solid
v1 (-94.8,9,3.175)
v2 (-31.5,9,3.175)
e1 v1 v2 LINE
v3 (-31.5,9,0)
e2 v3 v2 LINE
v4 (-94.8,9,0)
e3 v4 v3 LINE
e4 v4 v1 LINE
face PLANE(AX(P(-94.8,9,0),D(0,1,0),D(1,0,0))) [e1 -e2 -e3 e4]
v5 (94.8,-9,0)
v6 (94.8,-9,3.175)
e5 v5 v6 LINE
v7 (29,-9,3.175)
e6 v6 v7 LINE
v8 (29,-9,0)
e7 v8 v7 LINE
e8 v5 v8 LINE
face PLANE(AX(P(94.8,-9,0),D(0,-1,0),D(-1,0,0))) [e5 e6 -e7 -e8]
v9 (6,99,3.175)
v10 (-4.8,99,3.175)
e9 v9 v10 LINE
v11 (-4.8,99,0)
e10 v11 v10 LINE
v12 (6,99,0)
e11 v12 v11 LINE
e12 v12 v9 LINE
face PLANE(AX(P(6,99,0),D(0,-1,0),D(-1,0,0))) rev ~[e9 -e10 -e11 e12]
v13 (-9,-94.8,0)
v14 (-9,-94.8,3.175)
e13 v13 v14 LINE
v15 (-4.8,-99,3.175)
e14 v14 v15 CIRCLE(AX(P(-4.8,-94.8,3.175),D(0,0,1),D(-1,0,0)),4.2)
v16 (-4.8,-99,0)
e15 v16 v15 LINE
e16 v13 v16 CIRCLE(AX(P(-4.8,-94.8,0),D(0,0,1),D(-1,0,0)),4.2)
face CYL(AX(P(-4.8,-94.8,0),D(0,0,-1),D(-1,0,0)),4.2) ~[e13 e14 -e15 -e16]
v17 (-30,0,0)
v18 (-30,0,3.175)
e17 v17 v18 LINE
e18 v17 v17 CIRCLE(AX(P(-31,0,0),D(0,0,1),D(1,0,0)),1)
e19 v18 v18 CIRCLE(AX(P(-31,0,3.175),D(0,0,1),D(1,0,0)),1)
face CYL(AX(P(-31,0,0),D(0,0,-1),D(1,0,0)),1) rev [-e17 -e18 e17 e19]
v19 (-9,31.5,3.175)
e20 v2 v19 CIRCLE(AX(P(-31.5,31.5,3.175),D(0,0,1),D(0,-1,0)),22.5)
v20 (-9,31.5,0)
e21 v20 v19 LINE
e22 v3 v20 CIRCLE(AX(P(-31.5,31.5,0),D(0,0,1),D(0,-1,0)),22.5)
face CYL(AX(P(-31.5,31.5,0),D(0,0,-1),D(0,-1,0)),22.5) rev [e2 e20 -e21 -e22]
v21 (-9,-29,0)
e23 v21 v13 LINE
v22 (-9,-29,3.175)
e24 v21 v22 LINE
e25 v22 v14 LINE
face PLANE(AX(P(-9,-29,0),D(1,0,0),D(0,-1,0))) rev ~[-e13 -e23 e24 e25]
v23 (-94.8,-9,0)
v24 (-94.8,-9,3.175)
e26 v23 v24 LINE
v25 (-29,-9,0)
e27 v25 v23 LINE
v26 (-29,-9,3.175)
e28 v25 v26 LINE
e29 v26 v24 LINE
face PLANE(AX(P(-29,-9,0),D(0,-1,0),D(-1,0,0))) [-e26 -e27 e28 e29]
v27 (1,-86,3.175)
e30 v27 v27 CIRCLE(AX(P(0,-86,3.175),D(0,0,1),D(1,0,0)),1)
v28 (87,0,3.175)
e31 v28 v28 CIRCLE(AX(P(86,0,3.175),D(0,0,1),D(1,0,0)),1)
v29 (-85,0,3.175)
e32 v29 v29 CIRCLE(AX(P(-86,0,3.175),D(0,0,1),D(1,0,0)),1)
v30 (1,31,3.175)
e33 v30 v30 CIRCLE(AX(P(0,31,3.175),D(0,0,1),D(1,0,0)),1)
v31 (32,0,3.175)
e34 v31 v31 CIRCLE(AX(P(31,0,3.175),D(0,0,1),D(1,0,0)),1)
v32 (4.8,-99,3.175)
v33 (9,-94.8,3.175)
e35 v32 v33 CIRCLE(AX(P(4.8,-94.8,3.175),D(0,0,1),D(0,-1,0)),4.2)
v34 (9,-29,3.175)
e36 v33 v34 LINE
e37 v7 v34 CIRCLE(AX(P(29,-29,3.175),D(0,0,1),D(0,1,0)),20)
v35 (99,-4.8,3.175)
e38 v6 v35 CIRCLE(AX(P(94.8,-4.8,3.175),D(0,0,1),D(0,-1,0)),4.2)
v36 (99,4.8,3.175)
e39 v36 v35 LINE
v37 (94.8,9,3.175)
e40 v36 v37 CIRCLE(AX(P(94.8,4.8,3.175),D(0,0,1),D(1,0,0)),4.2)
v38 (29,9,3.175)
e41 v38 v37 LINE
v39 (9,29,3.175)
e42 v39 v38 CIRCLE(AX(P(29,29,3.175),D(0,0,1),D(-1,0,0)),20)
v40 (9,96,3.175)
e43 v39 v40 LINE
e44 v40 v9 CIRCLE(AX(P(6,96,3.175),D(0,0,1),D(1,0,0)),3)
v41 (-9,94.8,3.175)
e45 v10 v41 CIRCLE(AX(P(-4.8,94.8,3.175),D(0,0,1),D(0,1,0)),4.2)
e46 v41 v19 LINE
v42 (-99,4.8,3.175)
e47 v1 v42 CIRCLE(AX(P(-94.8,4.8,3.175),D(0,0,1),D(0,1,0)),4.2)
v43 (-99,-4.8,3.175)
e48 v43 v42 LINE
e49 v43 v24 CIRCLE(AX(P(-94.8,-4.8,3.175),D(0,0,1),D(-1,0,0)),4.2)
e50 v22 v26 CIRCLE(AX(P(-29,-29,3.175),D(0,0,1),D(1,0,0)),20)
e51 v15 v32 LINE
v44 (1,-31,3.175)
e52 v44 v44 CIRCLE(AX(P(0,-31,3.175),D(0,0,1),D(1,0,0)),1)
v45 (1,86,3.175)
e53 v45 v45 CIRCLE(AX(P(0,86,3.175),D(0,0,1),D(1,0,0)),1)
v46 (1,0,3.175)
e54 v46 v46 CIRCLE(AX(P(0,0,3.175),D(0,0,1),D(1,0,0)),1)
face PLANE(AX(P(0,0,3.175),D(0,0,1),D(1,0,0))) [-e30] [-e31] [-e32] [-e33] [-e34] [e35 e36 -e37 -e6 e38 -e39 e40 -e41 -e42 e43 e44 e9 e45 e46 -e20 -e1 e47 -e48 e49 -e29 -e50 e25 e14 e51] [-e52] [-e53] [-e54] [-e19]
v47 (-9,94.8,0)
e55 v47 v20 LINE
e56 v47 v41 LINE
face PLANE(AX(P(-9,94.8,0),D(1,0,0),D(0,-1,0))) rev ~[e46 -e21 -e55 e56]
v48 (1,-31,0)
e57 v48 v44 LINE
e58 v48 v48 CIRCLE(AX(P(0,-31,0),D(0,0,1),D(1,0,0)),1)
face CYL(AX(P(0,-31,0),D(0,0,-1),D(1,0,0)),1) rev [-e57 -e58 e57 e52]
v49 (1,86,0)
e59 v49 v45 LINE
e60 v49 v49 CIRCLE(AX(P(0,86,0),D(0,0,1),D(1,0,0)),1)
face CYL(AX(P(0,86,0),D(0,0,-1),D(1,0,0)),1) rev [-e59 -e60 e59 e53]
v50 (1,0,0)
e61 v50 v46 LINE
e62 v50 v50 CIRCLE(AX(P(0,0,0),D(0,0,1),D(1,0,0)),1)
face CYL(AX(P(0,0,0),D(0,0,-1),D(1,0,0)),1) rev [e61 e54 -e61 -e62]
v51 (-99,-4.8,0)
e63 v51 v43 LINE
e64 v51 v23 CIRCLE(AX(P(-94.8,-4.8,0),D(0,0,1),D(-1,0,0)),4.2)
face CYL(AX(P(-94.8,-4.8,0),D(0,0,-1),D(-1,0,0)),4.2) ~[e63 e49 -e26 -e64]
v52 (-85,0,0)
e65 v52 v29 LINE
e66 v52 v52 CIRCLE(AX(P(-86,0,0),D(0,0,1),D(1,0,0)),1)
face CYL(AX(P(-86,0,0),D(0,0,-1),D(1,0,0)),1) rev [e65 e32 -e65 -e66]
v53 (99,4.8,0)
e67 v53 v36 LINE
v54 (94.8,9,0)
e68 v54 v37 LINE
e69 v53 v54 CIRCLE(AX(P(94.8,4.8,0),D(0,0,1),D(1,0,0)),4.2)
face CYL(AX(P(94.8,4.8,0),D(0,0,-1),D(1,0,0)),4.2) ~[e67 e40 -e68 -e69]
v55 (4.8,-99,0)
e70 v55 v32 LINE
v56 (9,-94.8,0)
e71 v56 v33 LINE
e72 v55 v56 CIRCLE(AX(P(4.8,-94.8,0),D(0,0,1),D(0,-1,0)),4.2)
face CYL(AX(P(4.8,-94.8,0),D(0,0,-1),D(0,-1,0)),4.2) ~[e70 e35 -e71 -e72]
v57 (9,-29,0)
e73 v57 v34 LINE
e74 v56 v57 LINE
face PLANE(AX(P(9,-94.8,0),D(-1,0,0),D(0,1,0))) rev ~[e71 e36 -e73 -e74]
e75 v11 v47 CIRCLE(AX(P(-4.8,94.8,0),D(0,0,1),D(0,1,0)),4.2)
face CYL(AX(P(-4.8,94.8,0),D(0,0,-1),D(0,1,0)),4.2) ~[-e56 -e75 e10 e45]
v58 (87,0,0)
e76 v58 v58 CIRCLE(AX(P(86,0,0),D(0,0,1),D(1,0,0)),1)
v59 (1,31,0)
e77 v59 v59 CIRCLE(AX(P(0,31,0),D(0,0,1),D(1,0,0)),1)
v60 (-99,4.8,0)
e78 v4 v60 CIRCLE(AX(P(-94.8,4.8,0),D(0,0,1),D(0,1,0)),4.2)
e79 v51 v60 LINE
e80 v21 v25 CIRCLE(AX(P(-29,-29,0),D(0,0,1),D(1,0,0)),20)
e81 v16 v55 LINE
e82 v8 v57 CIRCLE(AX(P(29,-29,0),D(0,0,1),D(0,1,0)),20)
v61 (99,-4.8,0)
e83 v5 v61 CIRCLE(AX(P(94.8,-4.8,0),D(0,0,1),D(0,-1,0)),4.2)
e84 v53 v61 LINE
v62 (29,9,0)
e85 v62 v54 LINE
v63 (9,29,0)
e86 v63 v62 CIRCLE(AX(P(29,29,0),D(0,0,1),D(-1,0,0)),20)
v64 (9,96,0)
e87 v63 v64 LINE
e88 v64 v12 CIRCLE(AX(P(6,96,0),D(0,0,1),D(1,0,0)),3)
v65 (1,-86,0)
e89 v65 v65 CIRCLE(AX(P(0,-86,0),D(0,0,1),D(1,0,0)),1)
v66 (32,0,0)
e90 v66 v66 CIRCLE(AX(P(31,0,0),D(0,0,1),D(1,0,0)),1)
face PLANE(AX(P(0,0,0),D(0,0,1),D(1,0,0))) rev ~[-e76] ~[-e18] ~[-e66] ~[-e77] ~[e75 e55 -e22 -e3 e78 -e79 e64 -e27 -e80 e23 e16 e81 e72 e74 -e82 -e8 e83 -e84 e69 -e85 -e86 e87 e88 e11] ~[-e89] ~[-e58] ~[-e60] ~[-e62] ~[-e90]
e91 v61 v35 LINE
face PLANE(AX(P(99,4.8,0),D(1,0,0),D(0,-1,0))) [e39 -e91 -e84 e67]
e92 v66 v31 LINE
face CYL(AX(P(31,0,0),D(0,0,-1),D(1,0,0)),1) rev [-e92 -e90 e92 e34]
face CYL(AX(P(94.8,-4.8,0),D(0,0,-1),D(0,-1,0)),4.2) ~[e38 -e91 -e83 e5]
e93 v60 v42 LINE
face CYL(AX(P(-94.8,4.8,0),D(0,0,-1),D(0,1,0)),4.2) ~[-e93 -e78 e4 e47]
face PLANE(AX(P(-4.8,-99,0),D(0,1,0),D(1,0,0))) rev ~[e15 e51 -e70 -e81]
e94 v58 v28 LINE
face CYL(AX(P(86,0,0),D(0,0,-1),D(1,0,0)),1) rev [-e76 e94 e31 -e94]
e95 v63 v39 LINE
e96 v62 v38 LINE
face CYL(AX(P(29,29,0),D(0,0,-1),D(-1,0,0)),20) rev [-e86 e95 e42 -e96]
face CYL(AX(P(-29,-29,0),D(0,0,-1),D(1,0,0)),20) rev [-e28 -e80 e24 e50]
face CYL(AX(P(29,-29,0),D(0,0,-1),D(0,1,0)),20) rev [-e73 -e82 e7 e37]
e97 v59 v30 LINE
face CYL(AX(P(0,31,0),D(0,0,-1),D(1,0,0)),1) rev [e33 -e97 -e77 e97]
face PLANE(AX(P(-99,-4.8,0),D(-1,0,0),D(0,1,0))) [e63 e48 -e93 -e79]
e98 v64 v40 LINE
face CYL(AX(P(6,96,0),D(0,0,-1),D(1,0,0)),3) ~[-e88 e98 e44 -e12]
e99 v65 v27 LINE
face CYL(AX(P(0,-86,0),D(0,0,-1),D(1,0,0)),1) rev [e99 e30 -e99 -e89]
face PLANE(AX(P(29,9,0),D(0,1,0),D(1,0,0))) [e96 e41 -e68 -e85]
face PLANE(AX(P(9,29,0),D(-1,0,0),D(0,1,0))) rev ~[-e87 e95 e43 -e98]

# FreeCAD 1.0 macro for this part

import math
import FreeCAD as App
import Part
import Sketcher

V = App.Vector
Q = App.Units.Quantity

doc = App.newDocument("Part")
body = doc.addObject("PartDesign::Body", "Body")

sketch1 = body.newObject("Sketcher::SketchObject", "Sketch")
sketch1.AttachmentSupport = (doc.getObject("XY_Plane"), [""])
sketch1.MapMode = "FlatFace"
sketch1.addGeometry(Part.LineSegment(V(99, -4.8, 0), V(99, 4.8, 0)), False)
sketch1.addGeometry(Part.ArcOfCircle(Part.Circle(V(94.8, 4.8, 0), V(0, 0, 1), 4.2), math.radians(0), math.radians(90)), False)
sketch1.addGeometry(Part.LineSegment(V(94.8, 9, 0), V(29, 9, 0)), False)
sketch1.addGeometry(Part.ArcOfCircle(Part.Circle(V(29, 29, 0), V(0, 0, 1), 20), math.radians(180), math.radians(270)), False)
sketch1.addGeometry(Part.LineSegment(V(9, 29, 0), V(9, 96, 0)), False)
sketch1.addGeometry(Part.ArcOfCircle(Part.Circle(V(6, 96, 0), V(0, 0, 1), 3), math.radians(0), math.radians(90)), False)
sketch1.addGeometry(Part.LineSegment(V(6, 99, 0), V(-4.8, 99, 0)), False)
sketch1.addGeometry(Part.ArcOfCircle(Part.Circle(V(-4.8, 94.8, 0), V(0, 0, 1), 4.2), math.radians(90), math.radians(180)), False)
sketch1.addGeometry(Part.LineSegment(V(-9, 94.8, 0), V(-9, 31.5, 0)), False)
sketch1.addGeometry(Part.ArcOfCircle(Part.Circle(V(-31.5, 31.5, 0), V(0, 0, 1), 22.5), math.radians(-90), math.radians(0)), False)
sketch1.addGeometry(Part.LineSegment(V(-31.5, 9, 0), V(-94.8, 9, 0)), False)
sketch1.addGeometry(Part.ArcOfCircle(Part.Circle(V(-94.8, 4.8, 0), V(0, 0, 1), 4.2), math.radians(90), math.radians(180)), False)
sketch1.addGeometry(Part.LineSegment(V(-99, 4.8, 0), V(-99, -4.8, 0)), False)
sketch1.addGeometry(Part.ArcOfCircle(Part.Circle(V(-94.8, -4.8, 0), V(0, 0, 1), 4.2), math.radians(180), math.radians(270)), False)
sketch1.addGeometry(Part.LineSegment(V(-94.8, -9, 0), V(-29, -9, 0)), False)
sketch1.addGeometry(Part.ArcOfCircle(Part.Circle(V(-29, -29, 0), V(0, 0, 1), 20), math.radians(0), math.radians(90)), False)
sketch1.addGeometry(Part.LineSegment(V(-9, -29, 0), V(-9, -94.8, 0)), False)
sketch1.addGeometry(Part.ArcOfCircle(Part.Circle(V(-4.8, -94.8, 0), V(0, 0, 1), 4.2), math.radians(180), math.radians(270)), False)
sketch1.addGeometry(Part.LineSegment(V(-4.8, -99, 0), V(4.8, -99, 0)), False)
sketch1.addGeometry(Part.ArcOfCircle(Part.Circle(V(4.8, -94.8, 0), V(0, 0, 1), 4.2), math.radians(-90), math.radians(0)), False)
sketch1.addGeometry(Part.LineSegment(V(9, -94.8, 0), V(9, -29, 0)), False)
sketch1.addGeometry(Part.ArcOfCircle(Part.Circle(V(29, -29, 0), V(0, 0, 1), 20), math.radians(90), math.radians(180)), False)
sketch1.addGeometry(Part.LineSegment(V(29, -9, 0), V(94.8, -9, 0)), False)
sketch1.addGeometry(Part.ArcOfCircle(Part.Circle(V(94.8, -4.8, 0), V(0, 0, 1), 4.2), math.radians(-90), math.radians(0)), False)
sketch1.addGeometry(Part.Circle(V(0, -86, 0), V(0, 0, 1), 1), False)
sketch1.addGeometry(Part.Circle(V(0, -31, 0), V(0, 0, 1), 1), False)
sketch1.addGeometry(Part.Circle(V(-86, 0, 0), V(0, 0, 1), 1), False)
sketch1.addGeometry(Part.Circle(V(-31, 0, 0), V(0, 0, 1), 1), False)
sketch1.addGeometry(Part.Circle(V(0, 0, 0), V(0, 0, 1), 1), False)
sketch1.addGeometry(Part.Circle(V(31, 0, 0), V(0, 0, 1), 1), False)
sketch1.addGeometry(Part.Circle(V(0, 31, 0), V(0, 0, 1), 1), False)
sketch1.addGeometry(Part.Circle(V(86, 0, 0), V(0, 0, 1), 1), False)
sketch1.addGeometry(Part.Circle(V(0, 86, 0), V(0, 0, 1), 1), False)
sketch1.addConstraint(Sketcher.Constraint("Tangent", 0, 2, 1, 1))
sketch1.addConstraint(Sketcher.Constraint("Tangent", 1, 2, 2, 1))
sketch1.addConstraint(Sketcher.Constraint("Tangent", 2, 2, 3, 2))
sketch1.addConstraint(Sketcher.Constraint("Tangent", 3, 1, 4, 1))
sketch1.addConstraint(Sketcher.Constraint("Tangent", 4, 2, 5, 1))
sketch1.addConstraint(Sketcher.Constraint("Tangent", 5, 2, 6, 1))
sketch1.addConstraint(Sketcher.Constraint("Tangent", 6, 2, 7, 1))
sketch1.addConstraint(Sketcher.Constraint("Tangent", 7, 2, 8, 1))
sketch1.addConstraint(Sketcher.Constraint("Tangent", 8, 2, 9, 2))
sketch1.addConstraint(Sketcher.Constraint("Tangent", 9, 1, 10, 1))
sketch1.addConstraint(Sketcher.Constraint("Tangent", 10, 2, 11, 1))
sketch1.addConstraint(Sketcher.Constraint("Tangent", 11, 2, 12, 1))
sketch1.addConstraint(Sketcher.Constraint("Tangent", 12, 2, 13, 1))
sketch1.addConstraint(Sketcher.Constraint("Tangent", 13, 2, 14, 1))
sketch1.addConstraint(Sketcher.Constraint("Tangent", 14, 2, 15, 2))
sketch1.addConstraint(Sketcher.Constraint("Tangent", 15, 1, 16, 1))
sketch1.addConstraint(Sketcher.Constraint("Tangent", 16, 2, 17, 1))
sketch1.addConstraint(Sketcher.Constraint("Tangent", 17, 2, 18, 1))
sketch1.addConstraint(Sketcher.Constraint("Tangent", 18, 2, 19, 1))
sketch1.addConstraint(Sketcher.Constraint("Tangent", 19, 2, 20, 1))
sketch1.addConstraint(Sketcher.Constraint("Tangent", 20, 2, 21, 2))
sketch1.addConstraint(Sketcher.Constraint("Tangent", 21, 1, 22, 1))
sketch1.addConstraint(Sketcher.Constraint("Tangent", 22, 2, 23, 1))
sketch1.addConstraint(Sketcher.Constraint("Tangent", 23, 2, 0, 1))
sketch1.addConstraint(Sketcher.Constraint("Vertical", 0))
sketch1.addConstraint(Sketcher.Constraint("Horizontal", 2))
sketch1.addConstraint(Sketcher.Constraint("Vertical", 4))
sketch1.addConstraint(Sketcher.Constraint("Horizontal", 6))
sketch1.addConstraint(Sketcher.Constraint("Vertical", 8))
sketch1.addConstraint(Sketcher.Constraint("Horizontal", 10))
sketch1.addConstraint(Sketcher.Constraint("Vertical", 12))
sketch1.addConstraint(Sketcher.Constraint("Horizontal", 14))
sketch1.addConstraint(Sketcher.Constraint("Vertical", 16))
sketch1.addConstraint(Sketcher.Constraint("Horizontal", 18))
sketch1.addConstraint(Sketcher.Constraint("Vertical", 20))
sketch1.addConstraint(Sketcher.Constraint("Horizontal", 22))
sketch1.addConstraint(Sketcher.Constraint("Coincident", 28, 3, -1, 1))
sketch1.addConstraint(Sketcher.Constraint("Equal", 1, 7))
sketch1.addConstraint(Sketcher.Constraint("Equal", 7, 11))
sketch1.addConstraint(Sketcher.Constraint("Equal", 11, 13))
sketch1.addConstraint(Sketcher.Constraint("Equal", 3, 15))
sketch1.addConstraint(Sketcher.Constraint("Equal", 13, 17))
sketch1.addConstraint(Sketcher.Constraint("Equal", 17, 19))
sketch1.addConstraint(Sketcher.Constraint("Equal", 15, 21))
sketch1.addConstraint(Sketcher.Constraint("Equal", 19, 23))
sketch1.addConstraint(Sketcher.Constraint("Equal", 24, 25))
sketch1.addConstraint(Sketcher.Constraint("Equal", 25, 26))
sketch1.addConstraint(Sketcher.Constraint("Equal", 26, 27))
sketch1.addConstraint(Sketcher.Constraint("Equal", 27, 28))
sketch1.addConstraint(Sketcher.Constraint("Equal", 28, 29))
sketch1.addConstraint(Sketcher.Constraint("Equal", 29, 30))
sketch1.addConstraint(Sketcher.Constraint("Equal", 30, 31))
sketch1.addConstraint(Sketcher.Constraint("Equal", 31, 32))
sketch1.addConstraint(Sketcher.Constraint("Symmetric", 1, 3, 13, 3, -1, 1))
sketch1.addConstraint(Sketcher.Constraint("Symmetric", 7, 3, 19, 3, -1, 1))
sketch1.addConstraint(Sketcher.Constraint("Symmetric", 27, 3, 29, 3, -1, 1))
sketch1.addConstraint(Sketcher.Constraint("Symmetric", 25, 3, 30, 3, -1, 1))
sketch1.addConstraint(Sketcher.Constraint("Symmetric", 26, 3, 31, 3, -1, 1))
sketch1.addConstraint(Sketcher.Constraint("Symmetric", 24, 3, 32, 3, -1, 1))
sketch1.addConstraint(Sketcher.Constraint("Symmetric", 15, 3, 21, 3, -2))
sketch1.addConstraint(Sketcher.Constraint("PointOnObject", 24, 3, -2))
sketch1.addConstraint(Sketcher.Constraint("PointOnObject", 25, 3, -2))
sketch1.addConstraint(Sketcher.Constraint("PointOnObject", 26, 3, -1))
sketch1.addConstraint(Sketcher.Constraint("PointOnObject", 27, 3, -1))
sketch1.addConstraint(Sketcher.Constraint("Horizontal", 1, 3, 11, 3))
sketch1.addConstraint(Sketcher.Constraint("Vertical", 3, 3, 21, 3))
sketch1.addConstraint(Sketcher.Constraint("Equal", 18, 0))
sketch1.addConstraint(Sketcher.Constraint("Equal", 10, 8))
sketch1.addConstraint(Sketcher.Constraint("Diameter", 24, Q("2 mm")))
sketch1.addConstraint(Sketcher.Constraint("Radius", 3, Q("20 mm")))
sketch1.addConstraint(Sketcher.Constraint("Radius", 5, Q("3 mm")))
sketch1.addConstraint(Sketcher.Constraint("Radius", 1, Q("4.2 mm")))
sketch1.addConstraint(Sketcher.Constraint("Radius", 9, Q("22.5 mm")))
sketch1.addConstraint(Sketcher.Constraint("DistanceY", 25, 3, 15, 3, Q("2 mm")))
sketch1.addConstraint(Sketcher.Constraint("DistanceX", 27, 3, 15, 3, Q("2 mm")))
sketch1.addConstraint(Sketcher.Constraint("DistanceX", 31, 3, 0, 2, Q("13 mm")))
sketch1.addConstraint(Sketcher.Constraint("DistanceX", 29, 3, 0, 2, Q("68 mm")))
sketch1.addConstraint(Sketcher.Constraint("DistanceY", 32, 3, 5, 2, Q("13 mm")))
sketch1.addConstraint(Sketcher.Constraint("DistanceX", 8, 2, 3, 1, Q("18 mm")))
pad1 = body.newObject("PartDesign::Pad", "Pad")
pad1.Profile = sketch1
pad1.Length = 3.175

doc.recompute()
